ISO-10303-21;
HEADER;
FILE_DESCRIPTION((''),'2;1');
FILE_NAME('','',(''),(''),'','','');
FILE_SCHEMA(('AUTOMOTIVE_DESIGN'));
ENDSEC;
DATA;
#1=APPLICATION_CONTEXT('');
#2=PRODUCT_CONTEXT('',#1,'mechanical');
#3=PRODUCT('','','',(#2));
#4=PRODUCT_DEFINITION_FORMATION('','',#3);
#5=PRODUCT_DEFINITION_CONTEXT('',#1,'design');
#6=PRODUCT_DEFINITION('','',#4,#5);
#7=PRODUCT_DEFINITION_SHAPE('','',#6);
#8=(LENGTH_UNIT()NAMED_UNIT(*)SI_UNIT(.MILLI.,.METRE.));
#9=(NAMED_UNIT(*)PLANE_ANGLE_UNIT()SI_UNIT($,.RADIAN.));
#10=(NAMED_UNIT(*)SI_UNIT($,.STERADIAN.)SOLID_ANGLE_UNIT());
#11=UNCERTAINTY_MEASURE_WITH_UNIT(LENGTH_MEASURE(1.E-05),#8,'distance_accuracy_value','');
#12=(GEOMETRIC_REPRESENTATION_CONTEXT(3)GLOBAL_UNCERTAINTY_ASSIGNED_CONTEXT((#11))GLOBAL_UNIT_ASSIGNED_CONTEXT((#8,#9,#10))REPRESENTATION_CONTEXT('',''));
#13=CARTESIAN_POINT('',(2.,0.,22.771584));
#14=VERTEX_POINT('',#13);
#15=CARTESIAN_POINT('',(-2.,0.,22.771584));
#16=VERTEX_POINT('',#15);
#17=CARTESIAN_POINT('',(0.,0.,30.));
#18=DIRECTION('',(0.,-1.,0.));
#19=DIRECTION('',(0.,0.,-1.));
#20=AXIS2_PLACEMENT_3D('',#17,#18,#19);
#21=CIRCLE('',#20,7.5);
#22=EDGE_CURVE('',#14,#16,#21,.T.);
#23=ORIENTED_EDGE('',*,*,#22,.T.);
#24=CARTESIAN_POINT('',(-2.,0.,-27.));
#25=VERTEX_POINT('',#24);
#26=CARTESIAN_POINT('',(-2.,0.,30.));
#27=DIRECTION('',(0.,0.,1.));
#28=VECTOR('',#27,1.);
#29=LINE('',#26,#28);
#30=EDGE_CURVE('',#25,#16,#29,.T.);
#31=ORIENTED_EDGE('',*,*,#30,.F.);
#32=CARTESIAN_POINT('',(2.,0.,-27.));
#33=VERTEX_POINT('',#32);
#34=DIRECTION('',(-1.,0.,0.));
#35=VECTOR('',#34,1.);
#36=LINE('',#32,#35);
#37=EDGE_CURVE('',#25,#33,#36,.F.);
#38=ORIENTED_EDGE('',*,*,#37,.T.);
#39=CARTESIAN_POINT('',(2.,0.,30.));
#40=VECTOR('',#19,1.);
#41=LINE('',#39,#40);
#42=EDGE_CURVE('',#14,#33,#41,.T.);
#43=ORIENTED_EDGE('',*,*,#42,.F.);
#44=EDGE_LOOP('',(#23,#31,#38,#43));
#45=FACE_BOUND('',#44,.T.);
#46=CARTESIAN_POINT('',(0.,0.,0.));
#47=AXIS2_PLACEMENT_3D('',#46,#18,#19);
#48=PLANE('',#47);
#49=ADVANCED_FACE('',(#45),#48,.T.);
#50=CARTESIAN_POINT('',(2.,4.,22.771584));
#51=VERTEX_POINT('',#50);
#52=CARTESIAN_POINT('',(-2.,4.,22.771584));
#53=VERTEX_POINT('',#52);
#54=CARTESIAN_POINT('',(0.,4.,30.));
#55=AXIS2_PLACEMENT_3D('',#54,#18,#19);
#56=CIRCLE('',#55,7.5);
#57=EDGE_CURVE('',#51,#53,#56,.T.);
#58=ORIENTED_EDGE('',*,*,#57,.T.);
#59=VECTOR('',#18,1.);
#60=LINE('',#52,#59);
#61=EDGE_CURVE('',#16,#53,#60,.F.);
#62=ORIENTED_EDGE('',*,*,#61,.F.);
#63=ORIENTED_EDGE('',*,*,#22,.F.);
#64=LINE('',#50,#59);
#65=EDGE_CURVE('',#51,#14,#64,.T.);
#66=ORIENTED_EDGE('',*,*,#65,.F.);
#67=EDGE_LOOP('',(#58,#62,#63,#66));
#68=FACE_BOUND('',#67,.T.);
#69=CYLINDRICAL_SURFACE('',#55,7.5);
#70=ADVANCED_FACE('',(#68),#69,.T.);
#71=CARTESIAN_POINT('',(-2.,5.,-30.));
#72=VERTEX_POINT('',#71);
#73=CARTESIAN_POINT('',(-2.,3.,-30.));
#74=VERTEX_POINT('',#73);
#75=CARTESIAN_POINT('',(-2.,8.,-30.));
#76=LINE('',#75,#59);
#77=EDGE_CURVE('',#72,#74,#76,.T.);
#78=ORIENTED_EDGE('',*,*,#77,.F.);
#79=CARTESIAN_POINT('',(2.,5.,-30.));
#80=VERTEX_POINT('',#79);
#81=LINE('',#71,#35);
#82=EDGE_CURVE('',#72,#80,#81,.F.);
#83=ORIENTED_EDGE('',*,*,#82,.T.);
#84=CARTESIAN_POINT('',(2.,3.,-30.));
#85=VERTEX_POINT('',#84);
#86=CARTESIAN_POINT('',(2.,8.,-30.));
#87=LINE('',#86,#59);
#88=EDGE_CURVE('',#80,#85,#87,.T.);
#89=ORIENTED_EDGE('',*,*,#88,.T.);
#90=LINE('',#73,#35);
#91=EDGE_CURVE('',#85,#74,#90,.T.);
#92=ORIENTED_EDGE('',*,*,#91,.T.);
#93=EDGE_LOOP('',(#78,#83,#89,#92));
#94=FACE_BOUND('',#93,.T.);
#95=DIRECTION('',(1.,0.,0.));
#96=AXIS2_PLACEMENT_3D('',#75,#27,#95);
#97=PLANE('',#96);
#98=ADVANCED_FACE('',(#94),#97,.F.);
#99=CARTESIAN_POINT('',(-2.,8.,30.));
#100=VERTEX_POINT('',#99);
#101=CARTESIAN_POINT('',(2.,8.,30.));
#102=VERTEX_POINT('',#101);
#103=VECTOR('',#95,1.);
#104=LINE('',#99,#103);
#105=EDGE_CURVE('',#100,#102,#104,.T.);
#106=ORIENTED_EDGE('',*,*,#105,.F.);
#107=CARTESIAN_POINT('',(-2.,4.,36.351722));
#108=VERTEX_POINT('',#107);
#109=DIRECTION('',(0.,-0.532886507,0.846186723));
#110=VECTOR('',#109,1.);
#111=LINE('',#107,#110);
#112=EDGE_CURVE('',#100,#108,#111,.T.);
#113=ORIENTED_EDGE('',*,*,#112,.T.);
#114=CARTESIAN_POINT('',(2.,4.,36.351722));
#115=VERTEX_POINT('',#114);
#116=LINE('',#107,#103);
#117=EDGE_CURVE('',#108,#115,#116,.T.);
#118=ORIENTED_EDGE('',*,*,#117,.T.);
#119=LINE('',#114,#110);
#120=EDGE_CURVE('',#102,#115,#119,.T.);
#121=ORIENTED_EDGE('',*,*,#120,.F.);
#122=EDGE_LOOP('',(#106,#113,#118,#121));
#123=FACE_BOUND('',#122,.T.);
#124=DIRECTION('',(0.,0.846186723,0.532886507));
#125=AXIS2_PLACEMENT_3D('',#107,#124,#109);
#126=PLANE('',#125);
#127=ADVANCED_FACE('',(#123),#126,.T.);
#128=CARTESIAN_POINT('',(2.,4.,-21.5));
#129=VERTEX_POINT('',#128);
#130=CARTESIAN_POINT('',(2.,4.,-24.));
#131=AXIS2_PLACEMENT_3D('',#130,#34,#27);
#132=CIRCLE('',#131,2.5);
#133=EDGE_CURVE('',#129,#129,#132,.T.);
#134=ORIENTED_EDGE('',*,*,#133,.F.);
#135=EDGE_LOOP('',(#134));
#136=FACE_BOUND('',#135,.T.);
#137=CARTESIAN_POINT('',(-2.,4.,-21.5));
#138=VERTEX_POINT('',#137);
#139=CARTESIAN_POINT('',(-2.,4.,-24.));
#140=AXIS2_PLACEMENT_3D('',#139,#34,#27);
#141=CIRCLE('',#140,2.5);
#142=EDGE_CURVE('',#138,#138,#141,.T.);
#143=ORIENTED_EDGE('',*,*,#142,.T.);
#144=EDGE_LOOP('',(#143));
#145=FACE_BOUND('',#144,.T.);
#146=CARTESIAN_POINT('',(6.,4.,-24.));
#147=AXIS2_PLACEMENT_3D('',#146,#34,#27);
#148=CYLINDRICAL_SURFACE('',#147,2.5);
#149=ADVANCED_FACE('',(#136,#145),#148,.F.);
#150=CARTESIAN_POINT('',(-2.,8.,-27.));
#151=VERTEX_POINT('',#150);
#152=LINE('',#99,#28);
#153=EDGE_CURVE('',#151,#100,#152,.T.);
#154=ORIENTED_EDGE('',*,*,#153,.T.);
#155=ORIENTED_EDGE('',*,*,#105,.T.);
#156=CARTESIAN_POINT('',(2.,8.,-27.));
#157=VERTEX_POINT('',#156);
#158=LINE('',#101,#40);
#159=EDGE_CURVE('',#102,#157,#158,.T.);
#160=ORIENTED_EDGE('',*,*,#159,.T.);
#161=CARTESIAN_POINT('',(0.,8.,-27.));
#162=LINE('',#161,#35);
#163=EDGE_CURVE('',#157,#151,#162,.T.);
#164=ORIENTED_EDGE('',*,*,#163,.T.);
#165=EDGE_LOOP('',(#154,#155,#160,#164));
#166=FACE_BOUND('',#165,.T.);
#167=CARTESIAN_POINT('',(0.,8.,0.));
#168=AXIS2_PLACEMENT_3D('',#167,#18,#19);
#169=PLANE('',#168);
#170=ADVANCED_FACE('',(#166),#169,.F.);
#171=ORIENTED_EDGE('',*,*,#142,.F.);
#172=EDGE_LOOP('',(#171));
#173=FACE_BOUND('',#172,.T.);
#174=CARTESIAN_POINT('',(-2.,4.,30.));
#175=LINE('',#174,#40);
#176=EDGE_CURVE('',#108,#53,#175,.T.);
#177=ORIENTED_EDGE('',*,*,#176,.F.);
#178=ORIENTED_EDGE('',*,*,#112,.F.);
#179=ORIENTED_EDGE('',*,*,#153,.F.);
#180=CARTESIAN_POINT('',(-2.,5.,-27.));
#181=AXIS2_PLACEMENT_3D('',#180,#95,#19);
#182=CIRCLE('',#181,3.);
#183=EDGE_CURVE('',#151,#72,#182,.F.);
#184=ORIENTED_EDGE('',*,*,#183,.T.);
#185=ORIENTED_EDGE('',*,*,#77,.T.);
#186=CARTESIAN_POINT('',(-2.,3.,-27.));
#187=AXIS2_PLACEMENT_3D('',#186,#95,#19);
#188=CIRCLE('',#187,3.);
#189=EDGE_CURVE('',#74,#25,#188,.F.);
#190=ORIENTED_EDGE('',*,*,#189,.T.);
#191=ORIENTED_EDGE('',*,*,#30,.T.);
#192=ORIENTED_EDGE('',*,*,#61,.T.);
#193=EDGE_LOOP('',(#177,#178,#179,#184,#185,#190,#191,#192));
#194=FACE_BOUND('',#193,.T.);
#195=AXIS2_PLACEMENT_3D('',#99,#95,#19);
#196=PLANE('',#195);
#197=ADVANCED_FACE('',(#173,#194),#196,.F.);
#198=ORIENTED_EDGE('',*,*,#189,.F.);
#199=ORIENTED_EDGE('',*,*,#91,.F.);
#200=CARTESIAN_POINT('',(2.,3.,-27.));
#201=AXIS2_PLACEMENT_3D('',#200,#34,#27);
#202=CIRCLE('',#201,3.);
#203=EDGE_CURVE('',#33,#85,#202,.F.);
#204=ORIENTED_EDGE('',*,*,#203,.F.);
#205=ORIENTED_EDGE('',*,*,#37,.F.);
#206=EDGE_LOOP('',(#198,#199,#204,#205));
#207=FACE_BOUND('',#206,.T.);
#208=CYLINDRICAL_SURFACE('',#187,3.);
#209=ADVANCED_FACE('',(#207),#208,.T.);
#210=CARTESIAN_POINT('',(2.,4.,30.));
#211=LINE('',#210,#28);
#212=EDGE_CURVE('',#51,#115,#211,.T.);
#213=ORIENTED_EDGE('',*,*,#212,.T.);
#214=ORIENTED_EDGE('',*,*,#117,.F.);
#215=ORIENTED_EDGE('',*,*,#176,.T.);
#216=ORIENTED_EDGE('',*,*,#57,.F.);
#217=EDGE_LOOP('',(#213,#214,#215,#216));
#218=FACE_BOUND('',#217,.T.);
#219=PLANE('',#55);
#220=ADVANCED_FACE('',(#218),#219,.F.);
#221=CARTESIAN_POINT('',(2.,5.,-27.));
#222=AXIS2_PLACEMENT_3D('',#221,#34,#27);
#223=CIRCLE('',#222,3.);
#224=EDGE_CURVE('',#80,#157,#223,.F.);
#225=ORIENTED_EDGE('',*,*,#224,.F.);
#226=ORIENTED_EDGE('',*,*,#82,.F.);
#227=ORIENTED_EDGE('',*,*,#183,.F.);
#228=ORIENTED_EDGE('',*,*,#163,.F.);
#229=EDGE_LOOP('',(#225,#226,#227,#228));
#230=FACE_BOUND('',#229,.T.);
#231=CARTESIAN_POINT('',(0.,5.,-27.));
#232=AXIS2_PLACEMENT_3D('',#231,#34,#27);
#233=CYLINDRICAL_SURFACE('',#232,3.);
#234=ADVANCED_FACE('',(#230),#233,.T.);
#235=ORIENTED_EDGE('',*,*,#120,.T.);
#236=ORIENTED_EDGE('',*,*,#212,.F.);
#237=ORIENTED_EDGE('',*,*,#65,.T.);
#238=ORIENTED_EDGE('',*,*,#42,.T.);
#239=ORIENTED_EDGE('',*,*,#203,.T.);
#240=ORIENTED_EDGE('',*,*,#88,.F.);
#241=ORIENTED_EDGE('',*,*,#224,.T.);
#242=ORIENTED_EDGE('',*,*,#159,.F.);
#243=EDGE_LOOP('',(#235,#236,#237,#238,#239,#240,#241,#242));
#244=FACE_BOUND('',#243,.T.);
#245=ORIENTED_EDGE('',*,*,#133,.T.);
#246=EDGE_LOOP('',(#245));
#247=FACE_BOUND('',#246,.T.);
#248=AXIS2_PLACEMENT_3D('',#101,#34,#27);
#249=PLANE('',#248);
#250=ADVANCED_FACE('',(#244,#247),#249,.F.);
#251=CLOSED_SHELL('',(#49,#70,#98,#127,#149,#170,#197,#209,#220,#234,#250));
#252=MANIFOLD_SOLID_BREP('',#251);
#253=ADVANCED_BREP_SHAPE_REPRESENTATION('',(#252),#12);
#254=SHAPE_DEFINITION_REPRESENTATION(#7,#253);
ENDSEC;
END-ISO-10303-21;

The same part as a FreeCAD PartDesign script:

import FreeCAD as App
import Part
import Sketcher

V = App.Vector
Q = App.Units.Quantity


def edges_at(feature, points):
    """Names of the edges that pass closest to the given points."""
    edges = feature.Shape.Edges
    near = lambda p: min(range(len(edges)), key=lambda i: edges[i].distToShape(Part.Vertex(*p))[0])
    return sorted({f"Edge{near(p) + 1}" for p in points})

doc = App.newDocument("Part")
params = doc.addObject("Spreadsheet::Sheet", "Params")
for row, (alias, value) in enumerate([
    ("sketch1_width", "4 mm"),
    ("sketch1_height", "60 mm"),
    ("pad1_length", "8 mm"),
    ("sketch2_diameter", "5 mm"),
    ("pocket1_length", "8 mm"),
    ("fillet_radius", "3 mm"),
    ("sketch3_diameter", "15 mm"),
    ("pad2_length", "4 mm"),
    ("sketch4_width", "4 mm"),
    ("pad3_length", "4 mm"),
], start=1):
    params.set(f"A{row}", alias)
    params.set(f"B{row}", "=" + value)
    params.setAlias(f"B{row}", alias)

body = doc.addObject("PartDesign::Body", "Body")

# Sketch on XZ plane
sketch1 = doc.addObject("Sketcher::SketchObject", "Sketch")
body.addObject(sketch1)
sketch1.AttachmentSupport = (doc.XZ_Plane, [""])
sketch1.MapMode = "FlatFace"
sketch1.addGeometry([
    Part.LineSegment(V(-2, -30, 0), V(-2, 30, 0)),
    Part.LineSegment(V(-2, 30, 0), V(2, 30, 0)),
    Part.LineSegment(V(2, 30, 0), V(2, -30, 0)),
    Part.LineSegment(V(2, -30, 0), V(-2, -30, 0)),
], False)
sketch1.addConstraint([
    Sketcher.Constraint("Coincident", 0, 2, 1, 1),
    Sketcher.Constraint("Coincident", 1, 2, 2, 1),
    Sketcher.Constraint("Coincident", 2, 2, 3, 1),
    Sketcher.Constraint("Coincident", 3, 2, 0, 1),
    Sketcher.Constraint("Vertical", 0),
    Sketcher.Constraint("Horizontal", 1),
    Sketcher.Constraint("Vertical", 2),
    Sketcher.Constraint("Horizontal", 3),
    Sketcher.Constraint("Symmetric", 0, 2, 2, 2, -1, 1),
    Sketcher.Constraint("DistanceX", 1, 1, 1, 2, Q("4 mm")),
    Sketcher.Constraint("DistanceY", 0, 1, 0, 2, Q("60 mm")),
])
sketch1.setExpression("Constraints[9]", "Params.sketch1_width")
sketch1.setExpression("Constraints[10]", "Params.sketch1_height")
pad1 = doc.addObject("PartDesign::Pad", "Pad")
body.addObject(pad1)
pad1.Profile = sketch1
pad1.setExpression("Length", "Params.pad1_length")
pad1.Reversed = True

# Sketch on YZ plane
sketch2 = doc.addObject("Sketcher::SketchObject", "Sketch001")
body.addObject(sketch2)
sketch2.AttachmentSupport = (doc.YZ_Plane, [""])
sketch2.MapMode = "FlatFace"
sketch2.AttachmentOffset = App.Placement(V(0, 0, -2), App.Rotation())
sketch2.addGeometry(Part.Circle(V(4, -24, 0), V(0, 0, 1), 2.5), False)
sketch2.addConstraint([
    Sketcher.Constraint("Diameter", 0, Q("5 mm")),
    Sketcher.Constraint("DistanceX", -1, 1, 0, 3, Q("4 mm")),
    Sketcher.Constraint("DistanceY", 0, 3, -1, 1, Q("24 mm")),
])
sketch2.setExpression("Constraints[0]", "Params.sketch2_diameter")
pocket1 = doc.addObject("PartDesign::Pocket", "Pocket")
body.addObject(pocket1)
pocket1.Profile = sketch2
pocket1.setExpression("Length", "Params.pocket1_length")
pocket1.Reversed = True
doc.recompute()

fillet = doc.addObject("PartDesign::Fillet", "Fillet")
body.addObject(fillet)
fillet.Base = (pocket1, edges_at(pocket1, [(0, 0, -30), (0, 8, -30)]))
fillet.setExpression("Radius", "Params.fillet_radius")

# Sketch on XZ plane
sketch3 = doc.addObject("Sketcher::SketchObject", "Sketch002")
body.addObject(sketch3)
sketch3.AttachmentSupport = (doc.XZ_Plane, [""])
sketch3.MapMode = "FlatFace"
sketch3.addGeometry(Part.Circle(V(0, 30, 0), V(0, 0, 1), 7.5), False)
sketch3.addConstraint([
    Sketcher.Constraint("PointOnObject", 0, 3, -2),
    Sketcher.Constraint("Diameter", 0, Q("15 mm")),
    Sketcher.Constraint("DistanceY", -1, 1, 0, 3, Q("30 mm")),
])
sketch3.setExpression("Constraints[1]", "Params.sketch3_diameter")
pad2 = doc.addObject("PartDesign::Pad", "Pad001")
body.addObject(pad2)
pad2.Profile = sketch3
pad2.setExpression("Length", "Params.pad2_length")
pad2.Reversed = True

# Sketch on YZ plane
sketch4 = doc.addObject("Sketcher::SketchObject", "Sketch003")
body.addObject(sketch4)
sketch4.AttachmentSupport = (doc.YZ_Plane, [""])
sketch4.MapMode = "FlatFace"
sketch4.AttachmentOffset = App.Placement(V(0, 0, 2), App.Rotation())
sketch4.addGeometry([
    Part.LineSegment(V(4, 36.351722, 0), V(4, 30, 0)),
    Part.LineSegment(V(4, 30, 0), V(8, 30, 0)),
    Part.LineSegment(V(8, 30, 0), V(4, 36.351722, 0)),
], False)
sketch4.addConstraint([
    Sketcher.Constraint("Coincident", 0, 2, 1, 1),
    Sketcher.Constraint("Coincident", 1, 2, 2, 1),
    Sketcher.Constraint("Coincident", 2, 2, 0, 1),
    Sketcher.Constraint("Vertical", 0),
    Sketcher.Constraint("Horizontal", 1),
    Sketcher.Constraint("DistanceX", 1, 1, 1, 2, Q("4 mm")),
    Sketcher.Constraint("DistanceX", -1, 1, 0, 2, Q("4 mm")),
    Sketcher.Constraint("DistanceY", -1, 1, 0, 2, Q("30 mm")),
    Sketcher.Constraint("DistanceY", 0, 2, 0, 1, Q("6.351722 mm")),
])
sketch4.setExpression("Constraints[5]", "Params.sketch4_width")
pad3 = doc.addObject("PartDesign::Pad", "Pad002")
body.addObject(pad3)
pad3.Profile = sketch4
pad3.setExpression("Length", "Params.pad3_length")
pad3.Reversed = True

doc.recompute()
